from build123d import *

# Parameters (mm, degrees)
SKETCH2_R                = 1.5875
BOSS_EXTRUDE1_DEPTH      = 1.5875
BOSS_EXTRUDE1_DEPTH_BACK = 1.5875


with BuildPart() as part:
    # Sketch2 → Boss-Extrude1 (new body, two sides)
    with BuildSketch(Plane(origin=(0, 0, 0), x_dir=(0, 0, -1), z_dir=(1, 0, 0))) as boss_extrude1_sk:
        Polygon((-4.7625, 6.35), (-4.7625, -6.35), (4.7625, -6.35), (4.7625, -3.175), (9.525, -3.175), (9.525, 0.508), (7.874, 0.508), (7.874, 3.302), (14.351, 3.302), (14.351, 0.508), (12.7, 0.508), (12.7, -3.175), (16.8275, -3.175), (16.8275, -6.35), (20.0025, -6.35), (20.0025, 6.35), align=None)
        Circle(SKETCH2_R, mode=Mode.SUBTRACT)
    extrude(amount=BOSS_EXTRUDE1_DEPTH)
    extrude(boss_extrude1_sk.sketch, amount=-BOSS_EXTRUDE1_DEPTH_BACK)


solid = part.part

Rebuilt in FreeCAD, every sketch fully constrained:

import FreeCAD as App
import Part
import Sketcher
from FreeCAD import Vector
Q = App.Units.Quantity

doc = App.newDocument("Part")
body = doc.addObject("PartDesign::Body", "Body")

# Sketch on YZ plane
sketch1 = body.newObject("Sketcher::SketchObject", "Sketch")
sketch1.AttachmentSupport = (doc.getObject("YZ_Plane"), [""])
sketch1.MapMode = "FlatFace"
sketch1.addGeometry([
    Part.LineSegment(Vector(6.3, 4.8, 0), Vector(-6.3, 4.8, 0)),  # 0
    Part.LineSegment(Vector(-6.3, 4.8, 0), Vector(-6.3, -4.8, 0)),  # 1
    Part.LineSegment(Vector(-6.3, -4.8, 0), Vector(-3.2, -4.8, 0)),  # 2
    Part.LineSegment(Vector(-3.2, -4.8, 0), Vector(-3.2, -9.5, 0)),  # 3
    Part.LineSegment(Vector(-3.2, -9.5, 0), Vector(0.5, -9.5, 0)),  # 4
    Part.LineSegment(Vector(0.5, -9.5, 0), Vector(0.5, -7.9, 0)),  # 5
    Part.LineSegment(Vector(0.5, -7.9, 0), Vector(3.3, -7.9, 0)),  # 6
    Part.LineSegment(Vector(3.3, -7.9, 0), Vector(3.3, -14.4, 0)),  # 7
    Part.LineSegment(Vector(3.3, -14.4, 0), Vector(0.5, -14.4, 0)),  # 8
    Part.LineSegment(Vector(0.5, -14.4, 0), Vector(0.5, -12.7, 0)),  # 9
    Part.LineSegment(Vector(0.5, -12.7, 0), Vector(-3.2, -12.7, 0)),  # 10
    Part.LineSegment(Vector(-3.2, -12.7, 0), Vector(-3.2, -16.8, 0)),  # 11
    Part.LineSegment(Vector(-3.2, -16.8, 0), Vector(-6.3, -16.8, 0)),  # 12
    Part.LineSegment(Vector(-6.3, -16.8, 0), Vector(-6.3, -20, 0)),  # 13
    Part.LineSegment(Vector(-6.3, -20, 0), Vector(6.3, -20, 0)),  # 14
    Part.LineSegment(Vector(6.3, -20, 0), Vector(6.3, 4.8, 0)),  # 15
    Part.Circle(Vector(0, 0, 0), Vector(0, 0, 1), 1.6),  # 16
], False)
sketch1.addConstraint([
    Sketcher.Constraint("Coincident", 0, 2, 1, 1),
    Sketcher.Constraint("Coincident", 1, 2, 2, 1),
    Sketcher.Constraint("Coincident", 2, 2, 3, 1),
    Sketcher.Constraint("Coincident", 3, 2, 4, 1),
    Sketcher.Constraint("Coincident", 4, 2, 5, 1),
    Sketcher.Constraint("Coincident", 5, 2, 6, 1),
    Sketcher.Constraint("Coincident", 6, 2, 7, 1),
    Sketcher.Constraint("Coincident", 7, 2, 8, 1),
    Sketcher.Constraint("Coincident", 8, 2, 9, 1),
    Sketcher.Constraint("Coincident", 9, 2, 10, 1),
    Sketcher.Constraint("Coincident", 10, 2, 11, 1),
    Sketcher.Constraint("Coincident", 11, 2, 12, 1),
    Sketcher.Constraint("Coincident", 12, 2, 13, 1),
    Sketcher.Constraint("Coincident", 13, 2, 14, 1),
    Sketcher.Constraint("Coincident", 14, 2, 15, 1),
    Sketcher.Constraint("Coincident", 15, 2, 0, 1),
    Sketcher.Constraint("Horizontal", 0),
    Sketcher.Constraint("Vertical", 1),
    Sketcher.Constraint("Horizontal", 2),
    Sketcher.Constraint("Vertical", 3),
    Sketcher.Constraint("Horizontal", 4),
    Sketcher.Constraint("Vertical", 5),
    Sketcher.Constraint("Horizontal", 6),
    Sketcher.Constraint("Vertical", 7),
    Sketcher.Constraint("Horizontal", 8),
    Sketcher.Constraint("Vertical", 9),
    Sketcher.Constraint("Horizontal", 10),
    Sketcher.Constraint("Vertical", 11),
    Sketcher.Constraint("Horizontal", 12),
    Sketcher.Constraint("Vertical", 13),
    Sketcher.Constraint("Horizontal", 14),
    Sketcher.Constraint("Vertical", 15),
    Sketcher.Constraint("Coincident", 16, 3, -1, 1),
    Sketcher.Constraint("Symmetric", 1, 2, 15, 2, -1, 1),
    Sketcher.Constraint("Vertical", 5, 2, 8, 2),
    Sketcher.Constraint("Vertical", 3, 2, 10, 2),
    Sketcher.Constraint("Vertical", 1, 2, 12, 2),
    Sketcher.Constraint("Equal", 5, 9),
    Sketcher.Constraint("Equal", 12, 13),
    Sketcher.Constraint("Diameter", 16, Q("0.125 in")),
    Sketcher.Constraint("DistanceX", 0, 2, 0, 1, Q("0.5 in")),
    Sketcher.Constraint("DistanceX", 6, 1, 6, 2, Q("0.11 in")),
    Sketcher.Constraint("DistanceY", 9, 2, -1, 1, Q("0.5 in")),
    Sketcher.Constraint("DistanceX", 2, 1, 2, 2, Q("0.125 in")),
    Sketcher.Constraint("DistanceX", 4, 1, 4, 2, Q("0.145 in")),
    Sketcher.Constraint("DistanceY", 1, 2, 1, 1, Q("0.375 in")),
    Sketcher.Constraint("DistanceY", 3, 2, 3, 1, Q("0.1875 in")),
    Sketcher.Constraint("DistanceY", 5, 1, 5, 2, Q("0.065 in")),
    Sketcher.Constraint("DistanceY", 15, 1, 15, 2, Q("0.975 in")),
])
pad1 = body.newObject("PartDesign::Pad", "Pad")
pad1.Profile = sketch1
pad1.Type = "TwoLengths"
pad1.Length = Q("0.0625 in")
pad1.Length2 = Q("0.0625 in")

doc.recompute()
